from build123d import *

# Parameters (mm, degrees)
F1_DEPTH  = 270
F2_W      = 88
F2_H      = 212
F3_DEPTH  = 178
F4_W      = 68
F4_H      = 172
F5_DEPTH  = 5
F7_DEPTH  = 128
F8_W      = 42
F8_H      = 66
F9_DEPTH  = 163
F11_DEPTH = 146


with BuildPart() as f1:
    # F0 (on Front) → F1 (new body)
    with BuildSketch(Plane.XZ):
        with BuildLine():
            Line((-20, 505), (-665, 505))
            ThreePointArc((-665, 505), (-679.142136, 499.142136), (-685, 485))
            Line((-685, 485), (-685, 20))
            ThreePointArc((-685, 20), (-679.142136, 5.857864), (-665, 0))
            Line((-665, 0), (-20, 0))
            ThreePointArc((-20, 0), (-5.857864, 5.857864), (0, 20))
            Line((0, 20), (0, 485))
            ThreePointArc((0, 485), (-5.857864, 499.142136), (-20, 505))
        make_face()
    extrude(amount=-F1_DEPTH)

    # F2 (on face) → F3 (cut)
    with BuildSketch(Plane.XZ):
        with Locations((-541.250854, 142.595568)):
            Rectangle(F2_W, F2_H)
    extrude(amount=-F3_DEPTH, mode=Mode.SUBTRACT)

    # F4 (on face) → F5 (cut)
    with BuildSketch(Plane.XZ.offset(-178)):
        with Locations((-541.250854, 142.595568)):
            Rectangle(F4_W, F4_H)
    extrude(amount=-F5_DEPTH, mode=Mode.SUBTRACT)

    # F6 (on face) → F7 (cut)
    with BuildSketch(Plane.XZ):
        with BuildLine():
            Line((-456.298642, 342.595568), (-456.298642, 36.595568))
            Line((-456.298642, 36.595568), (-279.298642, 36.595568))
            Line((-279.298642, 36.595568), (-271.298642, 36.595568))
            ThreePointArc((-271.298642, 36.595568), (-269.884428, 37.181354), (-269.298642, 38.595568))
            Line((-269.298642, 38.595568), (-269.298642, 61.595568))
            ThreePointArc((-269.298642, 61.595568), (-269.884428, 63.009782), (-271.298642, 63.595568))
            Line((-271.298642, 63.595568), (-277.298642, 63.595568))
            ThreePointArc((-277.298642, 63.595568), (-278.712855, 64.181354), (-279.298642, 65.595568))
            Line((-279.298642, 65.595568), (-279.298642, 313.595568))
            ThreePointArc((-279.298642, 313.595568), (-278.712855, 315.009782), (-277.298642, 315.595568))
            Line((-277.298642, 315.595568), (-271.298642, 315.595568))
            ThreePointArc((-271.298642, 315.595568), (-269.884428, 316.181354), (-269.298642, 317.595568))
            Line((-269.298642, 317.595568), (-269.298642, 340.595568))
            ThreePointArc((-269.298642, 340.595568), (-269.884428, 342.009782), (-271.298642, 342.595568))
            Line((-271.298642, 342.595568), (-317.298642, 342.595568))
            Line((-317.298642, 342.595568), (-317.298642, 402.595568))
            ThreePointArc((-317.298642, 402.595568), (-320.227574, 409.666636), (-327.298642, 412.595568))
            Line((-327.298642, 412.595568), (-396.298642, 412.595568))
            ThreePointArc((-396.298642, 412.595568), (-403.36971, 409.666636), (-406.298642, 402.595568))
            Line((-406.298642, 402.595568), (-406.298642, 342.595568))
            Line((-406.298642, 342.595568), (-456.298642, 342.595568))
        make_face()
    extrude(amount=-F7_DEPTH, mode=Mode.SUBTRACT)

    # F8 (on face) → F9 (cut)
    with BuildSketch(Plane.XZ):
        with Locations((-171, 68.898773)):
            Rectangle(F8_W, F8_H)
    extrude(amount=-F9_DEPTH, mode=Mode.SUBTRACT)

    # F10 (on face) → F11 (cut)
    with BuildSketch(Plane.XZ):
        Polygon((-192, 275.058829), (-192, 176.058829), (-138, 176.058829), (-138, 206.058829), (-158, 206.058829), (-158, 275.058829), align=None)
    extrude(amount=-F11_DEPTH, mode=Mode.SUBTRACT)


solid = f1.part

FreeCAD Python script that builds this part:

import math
import FreeCAD as App
import Part
import Sketcher
Q = App.Units.Quantity


def add_polygon(sketch, points):
    """Adds a closed chain of lines whose ends are joined by coincident constraints."""
    first, n = sketch.GeometryCount, len(points)
    for a, b in zip(points, points[1:] + points[:1]):
        sketch.addGeometry(Part.LineSegment(App.Vector(*a, 0), App.Vector(*b, 0)), False)
    for i in range(n):
        sketch.addConstraint(Sketcher.Constraint("Coincident", first + i, 2, first + (i + 1) % n, 1))

doc = App.newDocument("Part")
params = doc.addObject("Spreadsheet::Sheet", "Params")
for row, (alias, value) in enumerate([
    ("sketch1_radius", "19.999999 mm"),
    ("sketch1_width", "645 mm"),
    ("sketch1_height", "465 mm"),
    ("pad1_length", "270 mm"),
    ("sketch2_width", "88 mm"),
    ("sketch2_height", "212 mm"),
    ("pocket1_length", "178 mm"),
    ("sketch3_width", "68 mm"),
    ("sketch3_height", "172 mm"),
    ("pocket2_length", "5 mm"),
    ("sketch4_radius", "1.999999 mm"),
    ("sketch4_radius2", "9.999999 mm"),
    ("sketch4_width", "185 mm"),
    ("sketch4_width2", "6 mm"),
    ("sketch4_width3", "46 mm"),
    ("pocket3_length", "128 mm"),
    ("sketch5_width", "42 mm"),
    ("sketch5_height", "66 mm"),
    ("pocket4_length", "163 mm"),
    ("sketch6_width", "54 mm"),
    ("sketch6_width2", "20 mm"),
    ("sketch6_height", "99 mm"),
    ("sketch6_height2", "30 mm"),
    ("pocket5_length", "146 mm"),
], start=1):
    params.set(f"A{row}", alias)
    params.set(f"B{row}", "=" + value)
    params.setAlias(f"B{row}", alias)

body = doc.addObject("PartDesign::Body", "Body")

# Sketch on XZ plane
sketch1 = body.newObject("Sketcher::SketchObject", "Sketch")
sketch1.AttachmentSupport = (doc.getObject("XZ_Plane"), [""])
sketch1.MapMode = "FlatFace"
sketch1.addGeometry(Part.LineSegment(App.Vector(-20, 505, 0), App.Vector(-665, 505, 0)), False)
sketch1.addGeometry(Part.ArcOfCircle(Part.Circle(App.Vector(-665, 485, 0), App.Vector(0, 0, 1), 20), math.radians(90), math.radians(180)), False)
sketch1.addGeometry(Part.LineSegment(App.Vector(-685, 485, 0), App.Vector(-685, 20, 0)), False)
sketch1.addGeometry(Part.ArcOfCircle(Part.Circle(App.Vector(-665, 20, 0), App.Vector(0, 0, 1), 20), math.radians(180), math.radians(270)), False)
sketch1.addGeometry(Part.LineSegment(App.Vector(-665, 0, 0), App.Vector(-20, 0, 0)), False)
sketch1.addGeometry(Part.ArcOfCircle(Part.Circle(App.Vector(-20, 20, 0), App.Vector(0, 0, 1), 20), math.radians(-90), math.radians(0)), False)
sketch1.addGeometry(Part.LineSegment(App.Vector(0, 20, 0), App.Vector(0, 485, 0)), False)
sketch1.addGeometry(Part.ArcOfCircle(Part.Circle(App.Vector(-20, 485, 0), App.Vector(0, 0, 1), 20), math.radians(0), math.radians(90)), False)
sketch1.addConstraint(Sketcher.Constraint("Tangent", 0, 2, 1, 1))
sketch1.addConstraint(Sketcher.Constraint("Tangent", 1, 2, 2, 1))
sketch1.addConstraint(Sketcher.Constraint("Tangent", 2, 2, 3, 1))
sketch1.addConstraint(Sketcher.Constraint("Tangent", 3, 2, 4, 1))
sketch1.addConstraint(Sketcher.Constraint("Tangent", 4, 2, 5, 1))
sketch1.addConstraint(Sketcher.Constraint("Tangent", 5, 2, 6, 1))
sketch1.addConstraint(Sketcher.Constraint("Tangent", 6, 2, 7, 1))
sketch1.addConstraint(Sketcher.Constraint("Tangent", 7, 2, 0, 1))
sketch1.addConstraint(Sketcher.Constraint("Horizontal", 0))
sketch1.addConstraint(Sketcher.Constraint("Vertical", 2))
sketch1.addConstraint(Sketcher.Constraint("Horizontal", 4))
sketch1.addConstraint(Sketcher.Constraint("Vertical", 6))
sketch1.addConstraint(Sketcher.Constraint("Equal", 1, 3))
sketch1.addConstraint(Sketcher.Constraint("Equal", 3, 5))
sketch1.addConstraint(Sketcher.Constraint("Equal", 5, 7))
sketch1.addConstraint(Sketcher.Constraint("PointOnObject", 3, 2, -1))
sketch1.addConstraint(Sketcher.Constraint("PointOnObject", 5, 2, -2))
sketch1.addConstraint(Sketcher.Constraint("Radius", 1, Q("19.999999 mm")))
sketch1.addConstraint(Sketcher.Constraint("DistanceX", 0, 2, 0, 1, Q("645 mm")))
sketch1.addConstraint(Sketcher.Constraint("DistanceY", 2, 2, 2, 1, Q("465 mm")))
sketch1.setExpression("Constraints[17]", "Params.sketch1_radius")
sketch1.setExpression("Constraints[18]", "Params.sketch1_width")
sketch1.setExpression("Constraints[19]", "Params.sketch1_height")
pad1 = body.newObject("PartDesign::Pad", "Pad")
pad1.Profile = sketch1
pad1.setExpression("Length", "Params.pad1_length")
pad1.Reversed = True

# Sketch on XZ plane
sketch2 = body.newObject("Sketcher::SketchObject", "Sketch001")
sketch2.AttachmentSupport = (doc.getObject("XZ_Plane"), [""])
sketch2.MapMode = "FlatFace"
add_polygon(sketch2, [(-585, 249), (-585, 37), (-497, 37), (-497, 249)])  # lines 0-3
sketch2.addConstraint(Sketcher.Constraint("Vertical", 0))
sketch2.addConstraint(Sketcher.Constraint("Horizontal", 1))
sketch2.addConstraint(Sketcher.Constraint("Vertical", 2))
sketch2.addConstraint(Sketcher.Constraint("Horizontal", 3))
sketch2.addConstraint(Sketcher.Constraint("DistanceX", 1, 1, 1, 2, Q("88 mm")))
sketch2.addConstraint(Sketcher.Constraint("DistanceY", 0, 2, 0, 1, Q("212 mm")))
sketch2.addConstraint(Sketcher.Constraint("DistanceX", 0, 2, -1, 1, Q("585.250854 mm")))
sketch2.addConstraint(Sketcher.Constraint("DistanceY", -1, 1, 0, 2, Q("36.595568 mm")))
sketch2.setExpression("Constraints[8]", "Params.sketch2_width")
sketch2.setExpression("Constraints[9]", "Params.sketch2_height")
pocket1 = body.newObject("PartDesign::Pocket", "Pocket")
pocket1.Profile = sketch2
pocket1.setExpression("Length", "Params.pocket1_length")

# Sketch on XZ plane
sketch3 = body.newObject("Sketcher::SketchObject", "Sketch002")
sketch3.AttachmentSupport = (doc.getObject("XZ_Plane"), [""])
sketch3.MapMode = "FlatFace"
sketch3.AttachmentOffset = App.Placement(App.Vector(0, 0, -178), App.Rotation())
add_polygon(sketch3, [(-575, 229), (-575, 57), (-507, 57), (-507, 229)])  # lines 0-3
sketch3.addConstraint(Sketcher.Constraint("Vertical", 0))
sketch3.addConstraint(Sketcher.Constraint("Horizontal", 1))
sketch3.addConstraint(Sketcher.Constraint("Vertical", 2))
sketch3.addConstraint(Sketcher.Constraint("Horizontal", 3))
sketch3.addConstraint(Sketcher.Constraint("DistanceX", 1, 1, 1, 2, Q("68 mm")))
sketch3.addConstraint(Sketcher.Constraint("DistanceY", 0, 2, 0, 1, Q("172 mm")))
sketch3.addConstraint(Sketcher.Constraint("DistanceX", 0, 2, -1, 1, Q("575.250854 mm")))
sketch3.addConstraint(Sketcher.Constraint("DistanceY", -1, 1, 0, 2, Q("56.595568 mm")))
sketch3.setExpression("Constraints[8]", "Params.sketch3_width")
sketch3.setExpression("Constraints[9]", "Params.sketch3_height")
pocket2 = body.newObject("PartDesign::Pocket", "Pocket001")
pocket2.Profile = sketch3
pocket2.setExpression("Length", "Params.pocket2_length")

# Sketch on XZ plane
sketch4 = body.newObject("Sketcher::SketchObject", "Sketch003")
sketch4.AttachmentSupport = (doc.getObject("XZ_Plane"), [""])
sketch4.MapMode = "FlatFace"
sketch4.addGeometry(Part.LineSegment(App.Vector(-456.3, 342.6, 0), App.Vector(-456.3, 36.6, 0)), False)
sketch4.addGeometry(Part.LineSegment(App.Vector(-456.3, 36.6, 0), App.Vector(-271.3, 36.6, 0)), False)
sketch4.addGeometry(Part.ArcOfCircle(Part.Circle(App.Vector(-271.3, 38.6, 0), App.Vector(0, 0, 1), 2), math.radians(-90), math.radians(0)), False)
sketch4.addGeometry(Part.LineSegment(App.Vector(-269.3, 38.6, 0), App.Vector(-269.3, 61.6, 0)), False)
sketch4.addGeometry(Part.ArcOfCircle(Part.Circle(App.Vector(-271.3, 61.6, 0), App.Vector(0, 0, 1), 2), math.radians(0), math.radians(90)), False)
sketch4.addGeometry(Part.LineSegment(App.Vector(-271.3, 63.6, 0), App.Vector(-277.3, 63.6, 0)), False)
sketch4.addGeometry(Part.ArcOfCircle(Part.Circle(App.Vector(-277.3, 65.6, 0), App.Vector(0, 0, 1), 2), math.radians(-180), math.radians(-90)), False)
sketch4.addGeometry(Part.LineSegment(App.Vector(-279.3, 65.6, 0), App.Vector(-279.3, 313.6, 0)), False)
sketch4.addGeometry(Part.ArcOfCircle(Part.Circle(App.Vector(-277.3, 313.6, 0), App.Vector(0, 0, 1), 2), math.radians(90), math.radians(180)), False)
sketch4.addGeometry(Part.LineSegment(App.Vector(-277.3, 315.6, 0), App.Vector(-271.3, 315.6, 0)), False)
sketch4.addGeometry(Part.ArcOfCircle(Part.Circle(App.Vector(-271.3, 317.6, 0), App.Vector(0, 0, 1), 2), math.radians(-90), math.radians(0)), False)
sketch4.addGeometry(Part.LineSegment(App.Vector(-269.3, 317.6, 0), App.Vector(-269.3, 340.6, 0)), False)
sketch4.addGeometry(Part.ArcOfCircle(Part.Circle(App.Vector(-271.3, 340.6, 0), App.Vector(0, 0, 1), 2), math.radians(0), math.radians(90)), False)
sketch4.addGeometry(Part.LineSegment(App.Vector(-271.3, 342.6, 0), App.Vector(-317.3, 342.6, 0)), False)
sketch4.addGeometry(Part.LineSegment(App.Vector(-317.3, 342.6, 0), App.Vector(-317.3, 402.6, 0)), False)
sketch4.addGeometry(Part.ArcOfCircle(Part.Circle(App.Vector(-327.3, 402.6, 0), App.Vector(0, 0, 1), 10), math.radians(0), math.radians(90)), False)
sketch4.addGeometry(Part.LineSegment(App.Vector(-327.3, 412.6, 0), App.Vector(-396.3, 412.6, 0)), False)
sketch4.addGeometry(Part.ArcOfCircle(Part.Circle(App.Vector(-396.3, 402.6, 0), App.Vector(0, 0, 1), 10), math.radians(90), math.radians(180)), False)
sketch4.addGeometry(Part.LineSegment(App.Vector(-406.3, 402.6, 0), App.Vector(-406.3, 342.6, 0)), False)
sketch4.addGeometry(Part.LineSegment(App.Vector(-406.3, 342.6, 0), App.Vector(-456.3, 342.6, 0)), False)
sketch4.addConstraint(Sketcher.Constraint("Coincident", 0, 2, 1, 1))
sketch4.addConstraint(Sketcher.Constraint("Tangent", 1, 2, 2, 1))
sketch4.addConstraint(Sketcher.Constraint("Tangent", 2, 2, 3, 1))
sketch4.addConstraint(Sketcher.Constraint("Tangent", 3, 2, 4, 1))
sketch4.addConstraint(Sketcher.Constraint("Tangent", 4, 2, 5, 1))
sketch4.addConstraint(Sketcher.Constraint("Tangent", 5, 2, 6, 2))
sketch4.addConstraint(Sketcher.Constraint("Tangent", 6, 1, 7, 1))
sketch4.addConstraint(Sketcher.Constraint("Tangent", 7, 2, 8, 2))
sketch4.addConstraint(Sketcher.Constraint("Tangent", 8, 1, 9, 1))
sketch4.addConstraint(Sketcher.Constraint("Tangent", 9, 2, 10, 1))
sketch4.addConstraint(Sketcher.Constraint("Tangent", 10, 2, 11, 1))
sketch4.addConstraint(Sketcher.Constraint("Tangent", 11, 2, 12, 1))
sketch4.addConstraint(Sketcher.Constraint("Tangent", 12, 2, 13, 1))
sketch4.addConstraint(Sketcher.Constraint("Coincident", 13, 2, 14, 1))
sketch4.addConstraint(Sketcher.Constraint("Tangent", 14, 2, 15, 1))
sketch4.addConstraint(Sketcher.Constraint("Tangent", 15, 2, 16, 1))
sketch4.addConstraint(Sketcher.Constraint("Tangent", 16, 2, 17, 1))
sketch4.addConstraint(Sketcher.Constraint("Tangent", 17, 2, 18, 1))
sketch4.addConstraint(Sketcher.Constraint("Coincident", 18, 2, 19, 1))
sketch4.addConstraint(Sketcher.Constraint("Coincident", 19, 2, 0, 1))
sketch4.addConstraint(Sketcher.Constraint("Vertical", 0))
sketch4.addConstraint(Sketcher.Constraint("Horizontal", 1))
sketch4.addConstraint(Sketcher.Constraint("Vertical", 3))
sketch4.addConstraint(Sketcher.Constraint("Horizontal", 5))
sketch4.addConstraint(Sketcher.Constraint("Vertical", 7))
sketch4.addConstraint(Sketcher.Constraint("Horizontal", 9))
sketch4.addConstraint(Sketcher.Constraint("Vertical", 11))
sketch4.addConstraint(Sketcher.Constraint("Horizontal", 13))
sketch4.addConstraint(Sketcher.Constraint("Vertical", 14))
sketch4.addConstraint(Sketcher.Constraint("Horizontal", 16))
sketch4.addConstraint(Sketcher.Constraint("Vertical", 18))
sketch4.addConstraint(Sketcher.Constraint("Horizontal", 19))
sketch4.addConstraint(Sketcher.Constraint("Equal", 2, 4))
sketch4.addConstraint(Sketcher.Constraint("Equal", 4, 6))
sketch4.addConstraint(Sketcher.Constraint("Equal", 6, 8))
sketch4.addConstraint(Sketcher.Constraint("Equal", 8, 10))
sketch4.addConstraint(Sketcher.Constraint("Equal", 10, 12))
sketch4.addConstraint(Sketcher.Constraint("Equal", 15, 17))
sketch4.addConstraint(Sketcher.Constraint("Horizontal", 13, 2, 18, 2))
sketch4.addConstraint(Sketcher.Constraint("Vertical", 4, 3, 10, 3))
sketch4.addConstraint(Sketcher.Constraint("Equal", 3, 11))
sketch4.addConstraint(Sketcher.Constraint("Radius", 2, Q("1.999999 mm")))
sketch4.addConstraint(Sketcher.Constraint("Radius", 15, Q("9.999999 mm")))
sketch4.addConstraint(Sketcher.Constraint("DistanceX", 1, 1, 1, 2, Q("185 mm")))
sketch4.addConstraint(Sketcher.Constraint("DistanceX", 5, 2, 5, 1, Q("6 mm")))
sketch4.addConstraint(Sketcher.Constraint("DistanceX", 13, 2, 13, 1, Q("46 mm")))
sketch4.addConstraint(Sketcher.Constraint("DistanceX", 16, 2, 16, 1, Q("69 mm")))
sketch4.addConstraint(Sketcher.Constraint("DistanceY", 0, 2, 0, 1, Q("306 mm")))
sketch4.addConstraint(Sketcher.Constraint("DistanceY", 3, 1, 3, 2, Q("23 mm")))
sketch4.addConstraint(Sketcher.Constraint("DistanceY", 14, 1, 14, 2, Q("60 mm")))
sketch4.addConstraint(Sketcher.Constraint("DistanceX", 2, 3, -1, 1, Q("271.298641 mm")))
sketch4.addConstraint(Sketcher.Constraint("DistanceY", -1, 1, 4, 3, Q("61.595569 mm")))
sketch4.setExpression("Constraints[41]", "Params.sketch4_radius")
sketch4.setExpression("Constraints[42]", "Params.sketch4_radius2")
sketch4.setExpression("Constraints[43]", "Params.sketch4_width")
sketch4.setExpression("Constraints[44]", "Params.sketch4_width2")
sketch4.setExpression("Constraints[45]", "Params.sketch4_width3")
pocket3 = body.newObject("PartDesign::Pocket", "Pocket002")
pocket3.Profile = sketch4
pocket3.setExpression("Length", "Params.pocket3_length")

# Sketch on XZ plane
sketch5 = body.newObject("Sketcher::SketchObject", "Sketch004")
sketch5.AttachmentSupport = (doc.getObject("XZ_Plane"), [""])
sketch5.MapMode = "FlatFace"
add_polygon(sketch5, [(-192, 102), (-192, 36), (-150, 36), (-150, 102)])  # lines 0-3
sketch5.addConstraint(Sketcher.Constraint("Vertical", 0))
sketch5.addConstraint(Sketcher.Constraint("Horizontal", 1))
sketch5.addConstraint(Sketcher.Constraint("Vertical", 2))
sketch5.addConstraint(Sketcher.Constraint("Horizontal", 3))
sketch5.addConstraint(Sketcher.Constraint("DistanceX", 1, 1, 1, 2, Q("42 mm")))
sketch5.addConstraint(Sketcher.Constraint("DistanceY", 0, 2, 0, 1, Q("66 mm")))
sketch5.addConstraint(Sketcher.Constraint("DistanceX", 0, 2, -1, 1, Q("192 mm")))
sketch5.addConstraint(Sketcher.Constraint("DistanceY", -1, 1, 0, 2, Q("35.898773 mm")))
sketch5.setExpression("Constraints[8]", "Params.sketch5_width")
sketch5.setExpression("Constraints[9]", "Params.sketch5_height")
pocket4 = body.newObject("PartDesign::Pocket", "Pocket003")
pocket4.Profile = sketch5
pocket4.setExpression("Length", "Params.pocket4_length")

# Sketch on XZ plane
sketch6 = body.newObject("Sketcher::SketchObject", "Sketch005")
sketch6.AttachmentSupport = (doc.getObject("XZ_Plane"), [""])
sketch6.MapMode = "FlatFace"
add_polygon(sketch6, [(-192, 275), (-192, 176), (-138, 176), (-138, 206), (-158, 206), (-158, 275)])  # lines 0-5
sketch6.addConstraint(Sketcher.Constraint("Vertical", 0))
sketch6.addConstraint(Sketcher.Constraint("Horizontal", 1))
sketch6.addConstraint(Sketcher.Constraint("Vertical", 2))
sketch6.addConstraint(Sketcher.Constraint("Horizontal", 3))
sketch6.addConstraint(Sketcher.Constraint("Vertical", 4))
sketch6.addConstraint(Sketcher.Constraint("Horizontal", 5))
sketch6.addConstraint(Sketcher.Constraint("DistanceX", 1, 1, 1, 2, Q("54 mm")))
sketch6.addConstraint(Sketcher.Constraint("DistanceX", 3, 2, 3, 1, Q("20 mm")))
sketch6.addConstraint(Sketcher.Constraint("DistanceY", 0, 2, 0, 1, Q("99 mm")))
sketch6.addConstraint(Sketcher.Constraint("DistanceY", 2, 1, 2, 2, Q("30 mm")))
sketch6.addConstraint(Sketcher.Constraint("DistanceX", 0, 2, -1, 1, Q("192 mm")))
sketch6.addConstraint(Sketcher.Constraint("DistanceY", -1, 1, 0, 2, Q("176.058829 mm")))
sketch6.setExpression("Constraints[12]", "Params.sketch6_width")
sketch6.setExpression("Constraints[13]", "Params.sketch6_width2")
sketch6.setExpression("Constraints[14]", "Params.sketch6_height")
sketch6.setExpression("Constraints[15]", "Params.sketch6_height2")
pocket5 = body.newObject("PartDesign::Pocket", "Pocket004")
pocket5.Profile = sketch6
pocket5.setExpression("Length", "Params.pocket5_length")

doc.recompute()
